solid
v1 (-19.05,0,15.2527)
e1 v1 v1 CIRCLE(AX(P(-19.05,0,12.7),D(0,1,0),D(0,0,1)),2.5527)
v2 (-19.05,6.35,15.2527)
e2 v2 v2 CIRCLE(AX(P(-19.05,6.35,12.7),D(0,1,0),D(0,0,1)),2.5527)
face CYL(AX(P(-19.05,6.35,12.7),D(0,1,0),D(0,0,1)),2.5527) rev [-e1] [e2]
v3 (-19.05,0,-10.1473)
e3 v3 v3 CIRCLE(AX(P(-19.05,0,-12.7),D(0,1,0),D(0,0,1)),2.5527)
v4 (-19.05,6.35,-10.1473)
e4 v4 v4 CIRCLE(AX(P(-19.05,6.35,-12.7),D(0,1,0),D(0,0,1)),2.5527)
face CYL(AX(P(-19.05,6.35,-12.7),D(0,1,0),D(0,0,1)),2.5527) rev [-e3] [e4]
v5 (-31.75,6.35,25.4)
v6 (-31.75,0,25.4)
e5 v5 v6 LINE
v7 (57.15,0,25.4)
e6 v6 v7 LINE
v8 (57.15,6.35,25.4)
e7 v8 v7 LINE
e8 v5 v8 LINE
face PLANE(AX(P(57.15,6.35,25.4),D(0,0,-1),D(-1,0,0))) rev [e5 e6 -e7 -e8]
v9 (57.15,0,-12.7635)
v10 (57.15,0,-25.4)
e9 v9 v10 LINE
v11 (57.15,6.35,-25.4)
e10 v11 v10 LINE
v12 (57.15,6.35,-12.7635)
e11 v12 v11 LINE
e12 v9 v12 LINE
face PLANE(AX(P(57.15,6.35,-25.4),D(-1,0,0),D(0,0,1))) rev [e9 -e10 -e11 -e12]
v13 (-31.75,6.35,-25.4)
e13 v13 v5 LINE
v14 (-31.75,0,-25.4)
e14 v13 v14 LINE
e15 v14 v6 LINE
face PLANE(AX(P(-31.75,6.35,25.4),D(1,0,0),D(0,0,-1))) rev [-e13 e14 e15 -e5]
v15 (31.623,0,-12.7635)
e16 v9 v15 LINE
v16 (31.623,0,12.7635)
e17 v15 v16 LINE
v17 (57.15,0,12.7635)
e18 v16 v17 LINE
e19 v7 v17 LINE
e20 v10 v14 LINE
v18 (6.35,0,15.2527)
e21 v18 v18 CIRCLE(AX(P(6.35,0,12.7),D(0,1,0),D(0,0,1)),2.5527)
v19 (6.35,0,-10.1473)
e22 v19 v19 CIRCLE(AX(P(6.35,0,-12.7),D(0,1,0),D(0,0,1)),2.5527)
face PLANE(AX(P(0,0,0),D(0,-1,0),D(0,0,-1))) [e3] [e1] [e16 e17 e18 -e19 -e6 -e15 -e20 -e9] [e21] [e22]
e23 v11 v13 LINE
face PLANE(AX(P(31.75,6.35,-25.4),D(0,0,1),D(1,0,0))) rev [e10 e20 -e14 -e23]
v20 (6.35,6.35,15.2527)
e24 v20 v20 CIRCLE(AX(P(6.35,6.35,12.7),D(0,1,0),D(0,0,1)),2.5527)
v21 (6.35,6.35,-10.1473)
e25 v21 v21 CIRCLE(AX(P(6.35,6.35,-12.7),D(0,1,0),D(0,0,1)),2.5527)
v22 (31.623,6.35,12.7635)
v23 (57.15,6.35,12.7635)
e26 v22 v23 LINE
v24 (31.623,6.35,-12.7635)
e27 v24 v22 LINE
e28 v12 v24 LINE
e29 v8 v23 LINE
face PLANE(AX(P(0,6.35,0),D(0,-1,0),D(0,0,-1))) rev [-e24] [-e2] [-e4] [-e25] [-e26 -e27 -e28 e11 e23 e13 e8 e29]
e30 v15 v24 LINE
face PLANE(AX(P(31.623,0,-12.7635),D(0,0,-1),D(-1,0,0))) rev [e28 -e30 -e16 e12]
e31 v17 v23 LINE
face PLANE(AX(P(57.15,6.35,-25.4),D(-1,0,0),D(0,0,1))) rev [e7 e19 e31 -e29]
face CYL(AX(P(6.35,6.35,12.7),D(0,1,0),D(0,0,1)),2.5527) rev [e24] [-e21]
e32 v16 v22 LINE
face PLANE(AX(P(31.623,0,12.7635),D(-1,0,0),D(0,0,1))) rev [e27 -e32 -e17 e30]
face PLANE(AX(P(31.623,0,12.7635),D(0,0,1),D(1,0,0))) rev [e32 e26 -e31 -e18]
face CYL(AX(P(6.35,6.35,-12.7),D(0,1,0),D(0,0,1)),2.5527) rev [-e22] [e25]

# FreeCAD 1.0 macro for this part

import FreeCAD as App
import Part
import Sketcher
Q = App.Units.Quantity


def add_polygon(sketch, points):
    """Adds a closed chain of lines whose ends are joined by coincident constraints."""
    first, n = sketch.GeometryCount, len(points)
    for a, b in zip(points, points[1:] + points[:1]):
        sketch.addGeometry(Part.LineSegment(App.Vector(*a, 0), App.Vector(*b, 0)), False)
    for i in range(n):
        sketch.addConstraint(Sketcher.Constraint("Coincident", first + i, 2, first + (i + 1) % n, 1))

doc = App.newDocument("Part")
body = doc.addObject("PartDesign::Body", "Body")

# Sketch on XZ plane
sketch1 = body.newObject("Sketcher::SketchObject", "Sketch")
sketch1.AttachmentSupport = (doc.getObject("XZ_Plane"), [""])
sketch1.MapMode = "FlatFace"
add_polygon(sketch1, [(57.15, -25.4), (-31.75, -25.4), (-31.75, 25.4), (57.15, 25.4)])  # lines 0-3
sketch1.addConstraint(Sketcher.Constraint("Horizontal", 0))
sketch1.addConstraint(Sketcher.Constraint("Vertical", 1))
sketch1.addConstraint(Sketcher.Constraint("Horizontal", 2))
sketch1.addConstraint(Sketcher.Constraint("Vertical", 3))
sketch1.addConstraint(Sketcher.Constraint("DistanceY", 1, 1, 1, 2, Q("2 in")))
sketch1.addConstraint(Sketcher.Constraint("DistanceX", 0, 2, 0, 1, Q("3.5 in")))
sketch1.addConstraint(Sketcher.Constraint("DistanceY", 0, 2, -1, 1, Q("1 in")))
sketch1.addConstraint(Sketcher.Constraint("DistanceX", 0, 2, -1, 1, Q("1.25 in")))
pad1 = body.newObject("PartDesign::Pad", "Pad")
pad1.Profile = sketch1
pad1.Length = Q("0.25 in")
pad1.Reversed = True

# Sketch on XZ plane
sketch2 = body.newObject("Sketcher::SketchObject", "Sketch001")
sketch2.AttachmentSupport = (doc.getObject("XZ_Plane"), [""])
sketch2.MapMode = "FlatFace"
sketch2.AttachmentOffset = App.Placement(App.Vector(0, 0, -0.25 * 25.4), App.Rotation())
sketch2.addGeometry(Part.Circle(App.Vector(-19.05, -12.7, 0), App.Vector(0, 0, 1), 2.5527), False)
sketch2.addGeometry(Part.Circle(App.Vector(6.35, -12.7, 0), App.Vector(0, 0, 1), 2.5527), False)
sketch2.addGeometry(Part.Circle(App.Vector(6.35, 12.7, 0), App.Vector(0, 0, 1), 2.5527), False)
sketch2.addGeometry(Part.Circle(App.Vector(-19.05, 12.7, 0), App.Vector(0, 0, 1), 2.5527), False)
sketch2.addConstraint(Sketcher.Constraint("Equal", 0, 1))
sketch2.addConstraint(Sketcher.Constraint("Equal", 1, 2))
sketch2.addConstraint(Sketcher.Constraint("Equal", 2, 3))
sketch2.addConstraint(Sketcher.Constraint("Symmetric", 1, 3, 2, 3, -1))
sketch2.addConstraint(Sketcher.Constraint("Symmetric", 0, 3, 3, 3, -1))
sketch2.addConstraint(Sketcher.Constraint("Horizontal", 0, 3, 1, 3))
sketch2.addConstraint(Sketcher.Constraint("Diameter", 0, Q("0.201 in")))
sketch2.addConstraint(Sketcher.Constraint("DistanceX", 0, 3, 1, 3, Q("1 in")))
sketch2.addConstraint(Sketcher.Constraint("DistanceY", 1, 3, 2, 3, Q("1 in")))
sketch2.addConstraint(Sketcher.Constraint("DistanceX", 0, 3, -1, 1, Q("0.75 in")))
doc.recompute()
hole = body.newObject("PartDesign::Hole", "Hole")
hole.Profile = sketch2
hole.ThreadType = "None"
hole.Diameter = Q("0.201 in")
hole.DepthType = "ThroughAll"
hole.Reversed = True

# Sketch on XZ plane
sketch3 = body.newObject("Sketcher::SketchObject", "Sketch002")
sketch3.AttachmentSupport = (doc.getObject("XZ_Plane"), [""])
sketch3.MapMode = "FlatFace"
sketch3.AttachmentOffset = App.Placement(App.Vector(0, 0, -0.25 * 25.4), App.Rotation())
add_polygon(sketch3, [(31.623, -12.7635), (31.623, 12.7635), (57.15, 12.7635), (57.15, -12.7635)])  # lines 0-3
sketch3.addConstraint(Sketcher.Constraint("Vertical", 0))
sketch3.addConstraint(Sketcher.Constraint("Horizontal", 1))
sketch3.addConstraint(Sketcher.Constraint("Vertical", 2))
sketch3.addConstraint(Sketcher.Constraint("Horizontal", 3))
sketch3.addConstraint(Sketcher.Constraint("Equal", 3, 0))
sketch3.addConstraint(Sketcher.Constraint("DistanceX", 1, 1, 1, 2, Q("1.005 in")))
sketch3.addConstraint(Sketcher.Constraint("DistanceX", -1, 1, 1, 2, Q("2.25 in")))
sketch3.addConstraint(Sketcher.Constraint("DistanceY", -1, 1, 0, 2, Q("0.5025 in")))
pocket1 = body.newObject("PartDesign::Pocket", "Pocket")
pocket1.Profile = sketch3
pocket1.Type = "ThroughAll"
pocket1.Reversed = True

doc.recompute()
